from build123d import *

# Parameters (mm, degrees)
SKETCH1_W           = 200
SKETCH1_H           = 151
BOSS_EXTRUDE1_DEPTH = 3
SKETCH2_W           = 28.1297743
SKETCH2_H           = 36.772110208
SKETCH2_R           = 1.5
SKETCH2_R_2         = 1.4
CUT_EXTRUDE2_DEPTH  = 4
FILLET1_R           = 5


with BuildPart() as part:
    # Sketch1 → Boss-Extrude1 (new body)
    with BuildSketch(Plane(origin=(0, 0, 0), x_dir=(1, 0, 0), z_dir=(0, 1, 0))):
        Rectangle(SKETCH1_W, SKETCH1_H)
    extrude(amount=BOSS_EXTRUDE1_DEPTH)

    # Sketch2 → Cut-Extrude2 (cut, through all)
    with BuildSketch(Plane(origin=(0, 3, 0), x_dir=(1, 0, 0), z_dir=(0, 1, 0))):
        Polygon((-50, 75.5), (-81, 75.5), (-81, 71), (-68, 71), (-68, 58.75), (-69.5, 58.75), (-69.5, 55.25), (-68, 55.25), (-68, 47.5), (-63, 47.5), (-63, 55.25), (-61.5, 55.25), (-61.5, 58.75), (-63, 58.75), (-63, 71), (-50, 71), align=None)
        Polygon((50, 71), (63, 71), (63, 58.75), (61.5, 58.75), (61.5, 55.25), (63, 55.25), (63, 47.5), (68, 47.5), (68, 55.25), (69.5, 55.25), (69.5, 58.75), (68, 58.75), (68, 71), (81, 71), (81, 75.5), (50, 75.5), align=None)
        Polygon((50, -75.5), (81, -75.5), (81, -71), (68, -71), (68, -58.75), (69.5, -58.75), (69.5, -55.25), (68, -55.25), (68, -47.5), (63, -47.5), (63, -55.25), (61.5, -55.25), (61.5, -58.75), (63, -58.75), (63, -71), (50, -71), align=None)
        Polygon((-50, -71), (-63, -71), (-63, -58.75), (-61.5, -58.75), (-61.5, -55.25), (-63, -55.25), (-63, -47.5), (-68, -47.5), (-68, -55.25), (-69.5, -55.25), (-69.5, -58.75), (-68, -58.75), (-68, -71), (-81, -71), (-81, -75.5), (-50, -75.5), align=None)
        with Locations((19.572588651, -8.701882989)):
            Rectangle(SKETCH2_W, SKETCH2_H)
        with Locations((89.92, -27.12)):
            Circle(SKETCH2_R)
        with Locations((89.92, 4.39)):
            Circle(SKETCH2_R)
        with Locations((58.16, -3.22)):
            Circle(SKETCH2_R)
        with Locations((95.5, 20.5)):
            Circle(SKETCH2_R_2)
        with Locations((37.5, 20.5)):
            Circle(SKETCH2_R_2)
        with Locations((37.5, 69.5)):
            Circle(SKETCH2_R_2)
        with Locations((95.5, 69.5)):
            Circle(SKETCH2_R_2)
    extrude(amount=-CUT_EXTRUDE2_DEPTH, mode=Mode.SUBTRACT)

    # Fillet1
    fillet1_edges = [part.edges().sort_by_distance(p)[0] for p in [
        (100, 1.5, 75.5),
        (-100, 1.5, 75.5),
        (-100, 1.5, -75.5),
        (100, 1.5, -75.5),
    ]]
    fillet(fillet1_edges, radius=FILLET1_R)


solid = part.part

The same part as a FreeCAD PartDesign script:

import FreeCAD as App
import Part
import Sketcher
from FreeCAD import Vector


def edges_at(feature, points):
    """Names of the edges that pass closest to the given points."""
    edges = feature.Shape.Edges
    near = lambda p: min(range(len(edges)), key=lambda i: edges[i].distToShape(Part.Vertex(*p))[0])
    return sorted({f"Edge{near(p) + 1}" for p in points})


def add_polygon(sketch, points):
    """Adds a closed chain of lines whose ends are joined by coincident constraints."""
    first, n = sketch.GeometryCount, len(points)
    for a, b in zip(points, points[1:] + points[:1]):
        sketch.addGeometry(Part.LineSegment(App.Vector(*a, 0), App.Vector(*b, 0)), False)
    for i in range(n):
        sketch.addConstraint(Sketcher.Constraint("Coincident", first + i, 2, first + (i + 1) % n, 1))

doc = App.newDocument("Part")
body = doc.addObject("PartDesign::Body", "Body")

# Sketch on XZ plane
sketch1 = body.newObject("Sketcher::SketchObject", "Sketch")
sketch1.AttachmentSupport = (doc.getObject("XZ_Plane"), [""])
sketch1.MapMode = "FlatFace"
add_polygon(sketch1, [(-100, -75.5), (-100, 75.5), (100, 75.5), (100, -75.5)])  # lines 0-3
sketch1.addConstraint(Sketcher.Constraint("Vertical", 0))
sketch1.addConstraint(Sketcher.Constraint("Horizontal", 1))
sketch1.addConstraint(Sketcher.Constraint("Vertical", 2))
sketch1.addConstraint(Sketcher.Constraint("Horizontal", 3))
sketch1.addConstraint(Sketcher.Constraint("Symmetric", 0, 2, 2, 2, -1, 1))
sketch1.addConstraint(Sketcher.Constraint("DistanceX", 1, 1, 1, 2, 200.0))
sketch1.addConstraint(Sketcher.Constraint("DistanceY", 0, 1, 0, 2, 151.0))
pad1 = body.newObject("PartDesign::Pad", "Pad")
pad1.Profile = sketch1
pad1.Length = 3
pad1.Reversed = True

# Sketch on XZ plane
sketch2 = body.newObject("Sketcher::SketchObject", "Sketch001")
sketch2.AttachmentSupport = (doc.getObject("XZ_Plane"), [""])
sketch2.MapMode = "FlatFace"
sketch2.AttachmentOffset = App.Placement(Vector(0, 0, -3), App.Rotation())
add_polygon(sketch2, [(-50, -75.5), (-81, -75.5), (-81, -71), (-68, -71), (-68, -58.75), (-69.5, -58.75), (-69.5, -55.25), (-68, -55.25), (-68, -47.5), (-63, -47.5), (-63, -55.25), (-61.5, -55.25), (-61.5, -58.75), (-63, -58.75), (-63, -71), (-50, -71)])  # lines 0-15
add_polygon(sketch2, [(50, -71), (63, -71), (63, -58.75), (61.5, -58.75), (61.5, -55.25), (63, -55.25), (63, -47.5), (68, -47.5), (68, -55.25), (69.5, -55.25), (69.5, -58.75), (68, -58.75), (68, -71), (81, -71), (81, -75.5), (50, -75.5)])  # lines 16-31
add_polygon(sketch2, [(50, 75.5), (81, 75.5), (81, 71), (68, 71), (68, 58.75), (69.5, 58.75), (69.5, 55.25), (68, 55.25), (68, 47.5), (63, 47.5), (63, 55.25), (61.5, 55.25), (61.5, 58.75), (63, 58.75), (63, 71), (50, 71)])  # lines 32-47
add_polygon(sketch2, [(-50, 71), (-63, 71), (-63, 58.75), (-61.5, 58.75), (-61.5, 55.25), (-63, 55.25), (-63, 47.5), (-68, 47.5), (-68, 55.25), (-69.5, 55.25), (-69.5, 58.75), (-68, 58.75), (-68, 71), (-81, 71), (-81, 75.5), (-50, 75.5)])  # lines 48-63
add_polygon(sketch2, [(5.507702, -9.684172), (5.507702, 27.087938), (33.637476, 27.087938), (33.637476, -9.684172)])  # lines 64-67
sketch2.addGeometry(Part.Circle(Vector(89.92, 27.12, 0), Vector(0, 0, 1), 1.5), False)  # 68
sketch2.addGeometry(Part.Circle(Vector(89.92, -4.39, 0), Vector(0, 0, 1), 1.5), False)  # 69
sketch2.addGeometry(Part.Circle(Vector(58.16, 3.22, 0), Vector(0, 0, 1), 1.5), False)  # 70
sketch2.addGeometry(Part.Circle(Vector(95.5, -20.5, 0), Vector(0, 0, 1), 1.4), False)  # 71
sketch2.addGeometry(Part.Circle(Vector(37.5, -20.5, 0), Vector(0, 0, 1), 1.4), False)  # 72
sketch2.addGeometry(Part.Circle(Vector(37.5, -69.5, 0), Vector(0, 0, 1), 1.4), False)  # 73
sketch2.addGeometry(Part.Circle(Vector(95.5, -69.5, 0), Vector(0, 0, 1), 1.4), False)  # 74
sketch2.addConstraint(Sketcher.Constraint("Horizontal", 0))
sketch2.addConstraint(Sketcher.Constraint("Vertical", 1))
sketch2.addConstraint(Sketcher.Constraint("Horizontal", 2))
sketch2.addConstraint(Sketcher.Constraint("Vertical", 3))
sketch2.addConstraint(Sketcher.Constraint("Horizontal", 4))
sketch2.addConstraint(Sketcher.Constraint("Vertical", 5))
sketch2.addConstraint(Sketcher.Constraint("Horizontal", 6))
sketch2.addConstraint(Sketcher.Constraint("Vertical", 7))
sketch2.addConstraint(Sketcher.Constraint("Horizontal", 8))
sketch2.addConstraint(Sketcher.Constraint("Vertical", 9))
sketch2.addConstraint(Sketcher.Constraint("Horizontal", 10))
sketch2.addConstraint(Sketcher.Constraint("Vertical", 11))
sketch2.addConstraint(Sketcher.Constraint("Horizontal", 12))
sketch2.addConstraint(Sketcher.Constraint("Vertical", 13))
sketch2.addConstraint(Sketcher.Constraint("Horizontal", 14))
sketch2.addConstraint(Sketcher.Constraint("Vertical", 15))
sketch2.addConstraint(Sketcher.Constraint("Horizontal", 16))
sketch2.addConstraint(Sketcher.Constraint("Vertical", 17))
sketch2.addConstraint(Sketcher.Constraint("Horizontal", 18))
sketch2.addConstraint(Sketcher.Constraint("Vertical", 19))
sketch2.addConstraint(Sketcher.Constraint("Horizontal", 20))
sketch2.addConstraint(Sketcher.Constraint("Vertical", 21))
sketch2.addConstraint(Sketcher.Constraint("Horizontal", 22))
sketch2.addConstraint(Sketcher.Constraint("Vertical", 23))
sketch2.addConstraint(Sketcher.Constraint("Horizontal", 24))
sketch2.addConstraint(Sketcher.Constraint("Vertical", 25))
sketch2.addConstraint(Sketcher.Constraint("Horizontal", 26))
sketch2.addConstraint(Sketcher.Constraint("Vertical", 27))
sketch2.addConstraint(Sketcher.Constraint("Horizontal", 28))
sketch2.addConstraint(Sketcher.Constraint("Vertical", 29))
sketch2.addConstraint(Sketcher.Constraint("Horizontal", 30))
sketch2.addConstraint(Sketcher.Constraint("Vertical", 31))
sketch2.addConstraint(Sketcher.Constraint("Horizontal", 32))
sketch2.addConstraint(Sketcher.Constraint("Vertical", 33))
sketch2.addConstraint(Sketcher.Constraint("Horizontal", 34))
sketch2.addConstraint(Sketcher.Constraint("Vertical", 35))
sketch2.addConstraint(Sketcher.Constraint("Horizontal", 36))
sketch2.addConstraint(Sketcher.Constraint("Vertical", 37))
sketch2.addConstraint(Sketcher.Constraint("Horizontal", 38))
sketch2.addConstraint(Sketcher.Constraint("Vertical", 39))
sketch2.addConstraint(Sketcher.Constraint("Horizontal", 40))
sketch2.addConstraint(Sketcher.Constraint("Vertical", 41))
sketch2.addConstraint(Sketcher.Constraint("Horizontal", 42))
sketch2.addConstraint(Sketcher.Constraint("Vertical", 43))
sketch2.addConstraint(Sketcher.Constraint("Horizontal", 44))
sketch2.addConstraint(Sketcher.Constraint("Vertical", 45))
sketch2.addConstraint(Sketcher.Constraint("Horizontal", 46))
sketch2.addConstraint(Sketcher.Constraint("Vertical", 47))
sketch2.addConstraint(Sketcher.Constraint("Horizontal", 48))
sketch2.addConstraint(Sketcher.Constraint("Vertical", 49))
sketch2.addConstraint(Sketcher.Constraint("Horizontal", 50))
sketch2.addConstraint(Sketcher.Constraint("Vertical", 51))
sketch2.addConstraint(Sketcher.Constraint("Horizontal", 52))
sketch2.addConstraint(Sketcher.Constraint("Vertical", 53))
sketch2.addConstraint(Sketcher.Constraint("Horizontal", 54))
sketch2.addConstraint(Sketcher.Constraint("Vertical", 55))
sketch2.addConstraint(Sketcher.Constraint("Horizontal", 56))
sketch2.addConstraint(Sketcher.Constraint("Vertical", 57))
sketch2.addConstraint(Sketcher.Constraint("Horizontal", 58))
sketch2.addConstraint(Sketcher.Constraint("Vertical", 59))
sketch2.addConstraint(Sketcher.Constraint("Horizontal", 60))
sketch2.addConstraint(Sketcher.Constraint("Vertical", 61))
sketch2.addConstraint(Sketcher.Constraint("Horizontal", 62))
sketch2.addConstraint(Sketcher.Constraint("Vertical", 63))
sketch2.addConstraint(Sketcher.Constraint("Vertical", 64))
sketch2.addConstraint(Sketcher.Constraint("Horizontal", 65))
sketch2.addConstraint(Sketcher.Constraint("Vertical", 66))
sketch2.addConstraint(Sketcher.Constraint("Horizontal", 67))
sketch2.addConstraint(Sketcher.Constraint("Equal", 68, 69))
sketch2.addConstraint(Sketcher.Constraint("Equal", 69, 70))
sketch2.addConstraint(Sketcher.Constraint("Equal", 71, 72))
sketch2.addConstraint(Sketcher.Constraint("Equal", 72, 73))
sketch2.addConstraint(Sketcher.Constraint("Equal", 73, 74))
sketch2.addConstraint(Sketcher.Constraint("Symmetric", 0, 2, 32, 2, -1, 1))
sketch2.addConstraint(Sketcher.Constraint("Symmetric", 2, 2, 34, 2, -1, 1))
sketch2.addConstraint(Sketcher.Constraint("Symmetric", 4, 2, 36, 2, -1, 1))
sketch2.addConstraint(Sketcher.Constraint("Symmetric", 6, 2, 38, 2, -1, 1))
sketch2.addConstraint(Sketcher.Constraint("Symmetric", 8, 2, 40, 2, -1, 1))
sketch2.addConstraint(Sketcher.Constraint("Symmetric", 10, 2, 42, 2, -1, 1))
sketch2.addConstraint(Sketcher.Constraint("Symmetric", 12, 2, 44, 2, -1, 1))
sketch2.addConstraint(Sketcher.Constraint("Symmetric", 14, 2, 46, 2, -1, 1))
sketch2.addConstraint(Sketcher.Constraint("Symmetric", 16, 2, 48, 2, -1, 1))
sketch2.addConstraint(Sketcher.Constraint("Symmetric", 18, 2, 50, 2, -1, 1))
sketch2.addConstraint(Sketcher.Constraint("Symmetric", 20, 2, 52, 2, -1, 1))
sketch2.addConstraint(Sketcher.Constraint("Symmetric", 22, 2, 54, 2, -1, 1))
sketch2.addConstraint(Sketcher.Constraint("Symmetric", 24, 2, 56, 2, -1, 1))
sketch2.addConstraint(Sketcher.Constraint("Symmetric", 26, 2, 58, 2, -1, 1))
sketch2.addConstraint(Sketcher.Constraint("Symmetric", 28, 2, 60, 2, -1, 1))
sketch2.addConstraint(Sketcher.Constraint("Symmetric", 30, 2, 62, 2, -1, 1))
sketch2.addConstraint(Sketcher.Constraint("Symmetric", 13, 2, 16, 2, -2))
sketch2.addConstraint(Sketcher.Constraint("Symmetric", 11, 2, 18, 2, -2))
sketch2.addConstraint(Sketcher.Constraint("Symmetric", 9, 2, 20, 2, -2))
sketch2.addConstraint(Sketcher.Constraint("Symmetric", 7, 2, 22, 2, -2))
sketch2.addConstraint(Sketcher.Constraint("Symmetric", 5, 2, 24, 2, -2))
sketch2.addConstraint(Sketcher.Constraint("Symmetric", 3, 2, 26, 2, -2))
sketch2.addConstraint(Sketcher.Constraint("Symmetric", 1, 2, 28, 2, -2))
sketch2.addConstraint(Sketcher.Constraint("Symmetric", 15, 2, 30, 2, -2))
sketch2.addConstraint(Sketcher.Constraint("Horizontal", 71, 3, 72, 3))
sketch2.addConstraint(Sketcher.Constraint("Horizontal", 73, 3, 74, 3))
sketch2.addConstraint(Sketcher.Constraint("Horizontal", 6, 2, 9, 2))
sketch2.addConstraint(Sketcher.Constraint("Horizontal", 4, 2, 11, 2))
sketch2.addConstraint(Sketcher.Constraint("Horizontal", 2, 2, 13, 2))
sketch2.addConstraint(Sketcher.Constraint("Vertical", 68, 3, 69, 3))
sketch2.addConstraint(Sketcher.Constraint("Vertical", 72, 3, 73, 3))
sketch2.addConstraint(Sketcher.Constraint("Vertical", 71, 3, 74, 3))
sketch2.addConstraint(Sketcher.Constraint("Vertical", 3, 2, 6, 2))
sketch2.addConstraint(Sketcher.Constraint("Vertical", 9, 2, 12, 2))
sketch2.addConstraint(Sketcher.Constraint("Equal", 6, 10))
sketch2.addConstraint(Sketcher.Constraint("Equal", 2, 14))
sketch2.addConstraint(Sketcher.Constraint("Diameter", 68, 3.0))
sketch2.addConstraint(Sketcher.Constraint("Diameter", 71, 2.8))
sketch2.addConstraint(Sketcher.Constraint("DistanceX", 0, 2, 0, 1, 31.0))
sketch2.addConstraint(Sketcher.Constraint("DistanceX", 2, 1, 2, 2, 13.0))
sketch2.addConstraint(Sketcher.Constraint("DistanceX", 4, 2, 4, 1, 1.5))
sketch2.addConstraint(Sketcher.Constraint("DistanceY", 1, 1, 1, 2, 4.5))
sketch2.addConstraint(Sketcher.Constraint("DistanceY", 5, 1, 5, 2, 3.5))
sketch2.addConstraint(Sketcher.Constraint("DistanceX", 0, 2, -1, 1, 81.0))
sketch2.addConstraint(Sketcher.Constraint("DistanceY", 1, 2, -1, 1, 71.0))
sketch2.addConstraint(Sketcher.Constraint("DistanceY", 3, 1, 3, 2, 12.25))
sketch2.addConstraint(Sketcher.Constraint("DistanceY", 7, 1, 7, 2, 7.75))
sketch2.addConstraint(Sketcher.Constraint("DistanceX", -1, 1, 71, 3, 95.5))
sketch2.addConstraint(Sketcher.Constraint("DistanceY", 71, 3, -1, 1, 20.5))
sketch2.addConstraint(Sketcher.Constraint("DistanceX", -1, 1, 72, 3, 37.5))
sketch2.addConstraint(Sketcher.Constraint("DistanceY", 73, 3, -1, 1, 69.5))
sketch2.addConstraint(Sketcher.Constraint("DistanceX", -1, 1, 68, 3, 89.92))
sketch2.addConstraint(Sketcher.Constraint("DistanceY", -1, 1, 68, 3, 27.12))
sketch2.addConstraint(Sketcher.Constraint("DistanceY", 69, 3, -1, 1, 4.39))
sketch2.addConstraint(Sketcher.Constraint("DistanceX", -1, 1, 70, 3, 58.16))
sketch2.addConstraint(Sketcher.Constraint("DistanceY", -1, 1, 70, 3, 3.22))
sketch2.addConstraint(Sketcher.Constraint("DistanceY", 64, 1, 64, 2, 36.77211))
sketch2.addConstraint(Sketcher.Constraint("DistanceX", -1, 1, 64, 2, 5.507702))
sketch2.addConstraint(Sketcher.Constraint("DistanceX", 65, 1, 65, 2, 28.129774))
sketch2.addConstraint(Sketcher.Constraint("DistanceY", -1, 1, 64, 2, 27.087938))
pocket1 = body.newObject("PartDesign::Pocket", "Pocket")
pocket1.Profile = sketch2
pocket1.Type = "ThroughAll"
pocket1.Reversed = True
doc.recompute()

fillet = body.newObject("PartDesign::Fillet", "Fillet")
fillet.Base = (pocket1, edges_at(pocket1, [
    (100, 1.5, 75.5),
    (-100, 1.5, 75.5),
    (-100, 1.5, -75.5),
    (100, 1.5, -75.5),
]))
fillet.Radius = 5

doc.recompute()
